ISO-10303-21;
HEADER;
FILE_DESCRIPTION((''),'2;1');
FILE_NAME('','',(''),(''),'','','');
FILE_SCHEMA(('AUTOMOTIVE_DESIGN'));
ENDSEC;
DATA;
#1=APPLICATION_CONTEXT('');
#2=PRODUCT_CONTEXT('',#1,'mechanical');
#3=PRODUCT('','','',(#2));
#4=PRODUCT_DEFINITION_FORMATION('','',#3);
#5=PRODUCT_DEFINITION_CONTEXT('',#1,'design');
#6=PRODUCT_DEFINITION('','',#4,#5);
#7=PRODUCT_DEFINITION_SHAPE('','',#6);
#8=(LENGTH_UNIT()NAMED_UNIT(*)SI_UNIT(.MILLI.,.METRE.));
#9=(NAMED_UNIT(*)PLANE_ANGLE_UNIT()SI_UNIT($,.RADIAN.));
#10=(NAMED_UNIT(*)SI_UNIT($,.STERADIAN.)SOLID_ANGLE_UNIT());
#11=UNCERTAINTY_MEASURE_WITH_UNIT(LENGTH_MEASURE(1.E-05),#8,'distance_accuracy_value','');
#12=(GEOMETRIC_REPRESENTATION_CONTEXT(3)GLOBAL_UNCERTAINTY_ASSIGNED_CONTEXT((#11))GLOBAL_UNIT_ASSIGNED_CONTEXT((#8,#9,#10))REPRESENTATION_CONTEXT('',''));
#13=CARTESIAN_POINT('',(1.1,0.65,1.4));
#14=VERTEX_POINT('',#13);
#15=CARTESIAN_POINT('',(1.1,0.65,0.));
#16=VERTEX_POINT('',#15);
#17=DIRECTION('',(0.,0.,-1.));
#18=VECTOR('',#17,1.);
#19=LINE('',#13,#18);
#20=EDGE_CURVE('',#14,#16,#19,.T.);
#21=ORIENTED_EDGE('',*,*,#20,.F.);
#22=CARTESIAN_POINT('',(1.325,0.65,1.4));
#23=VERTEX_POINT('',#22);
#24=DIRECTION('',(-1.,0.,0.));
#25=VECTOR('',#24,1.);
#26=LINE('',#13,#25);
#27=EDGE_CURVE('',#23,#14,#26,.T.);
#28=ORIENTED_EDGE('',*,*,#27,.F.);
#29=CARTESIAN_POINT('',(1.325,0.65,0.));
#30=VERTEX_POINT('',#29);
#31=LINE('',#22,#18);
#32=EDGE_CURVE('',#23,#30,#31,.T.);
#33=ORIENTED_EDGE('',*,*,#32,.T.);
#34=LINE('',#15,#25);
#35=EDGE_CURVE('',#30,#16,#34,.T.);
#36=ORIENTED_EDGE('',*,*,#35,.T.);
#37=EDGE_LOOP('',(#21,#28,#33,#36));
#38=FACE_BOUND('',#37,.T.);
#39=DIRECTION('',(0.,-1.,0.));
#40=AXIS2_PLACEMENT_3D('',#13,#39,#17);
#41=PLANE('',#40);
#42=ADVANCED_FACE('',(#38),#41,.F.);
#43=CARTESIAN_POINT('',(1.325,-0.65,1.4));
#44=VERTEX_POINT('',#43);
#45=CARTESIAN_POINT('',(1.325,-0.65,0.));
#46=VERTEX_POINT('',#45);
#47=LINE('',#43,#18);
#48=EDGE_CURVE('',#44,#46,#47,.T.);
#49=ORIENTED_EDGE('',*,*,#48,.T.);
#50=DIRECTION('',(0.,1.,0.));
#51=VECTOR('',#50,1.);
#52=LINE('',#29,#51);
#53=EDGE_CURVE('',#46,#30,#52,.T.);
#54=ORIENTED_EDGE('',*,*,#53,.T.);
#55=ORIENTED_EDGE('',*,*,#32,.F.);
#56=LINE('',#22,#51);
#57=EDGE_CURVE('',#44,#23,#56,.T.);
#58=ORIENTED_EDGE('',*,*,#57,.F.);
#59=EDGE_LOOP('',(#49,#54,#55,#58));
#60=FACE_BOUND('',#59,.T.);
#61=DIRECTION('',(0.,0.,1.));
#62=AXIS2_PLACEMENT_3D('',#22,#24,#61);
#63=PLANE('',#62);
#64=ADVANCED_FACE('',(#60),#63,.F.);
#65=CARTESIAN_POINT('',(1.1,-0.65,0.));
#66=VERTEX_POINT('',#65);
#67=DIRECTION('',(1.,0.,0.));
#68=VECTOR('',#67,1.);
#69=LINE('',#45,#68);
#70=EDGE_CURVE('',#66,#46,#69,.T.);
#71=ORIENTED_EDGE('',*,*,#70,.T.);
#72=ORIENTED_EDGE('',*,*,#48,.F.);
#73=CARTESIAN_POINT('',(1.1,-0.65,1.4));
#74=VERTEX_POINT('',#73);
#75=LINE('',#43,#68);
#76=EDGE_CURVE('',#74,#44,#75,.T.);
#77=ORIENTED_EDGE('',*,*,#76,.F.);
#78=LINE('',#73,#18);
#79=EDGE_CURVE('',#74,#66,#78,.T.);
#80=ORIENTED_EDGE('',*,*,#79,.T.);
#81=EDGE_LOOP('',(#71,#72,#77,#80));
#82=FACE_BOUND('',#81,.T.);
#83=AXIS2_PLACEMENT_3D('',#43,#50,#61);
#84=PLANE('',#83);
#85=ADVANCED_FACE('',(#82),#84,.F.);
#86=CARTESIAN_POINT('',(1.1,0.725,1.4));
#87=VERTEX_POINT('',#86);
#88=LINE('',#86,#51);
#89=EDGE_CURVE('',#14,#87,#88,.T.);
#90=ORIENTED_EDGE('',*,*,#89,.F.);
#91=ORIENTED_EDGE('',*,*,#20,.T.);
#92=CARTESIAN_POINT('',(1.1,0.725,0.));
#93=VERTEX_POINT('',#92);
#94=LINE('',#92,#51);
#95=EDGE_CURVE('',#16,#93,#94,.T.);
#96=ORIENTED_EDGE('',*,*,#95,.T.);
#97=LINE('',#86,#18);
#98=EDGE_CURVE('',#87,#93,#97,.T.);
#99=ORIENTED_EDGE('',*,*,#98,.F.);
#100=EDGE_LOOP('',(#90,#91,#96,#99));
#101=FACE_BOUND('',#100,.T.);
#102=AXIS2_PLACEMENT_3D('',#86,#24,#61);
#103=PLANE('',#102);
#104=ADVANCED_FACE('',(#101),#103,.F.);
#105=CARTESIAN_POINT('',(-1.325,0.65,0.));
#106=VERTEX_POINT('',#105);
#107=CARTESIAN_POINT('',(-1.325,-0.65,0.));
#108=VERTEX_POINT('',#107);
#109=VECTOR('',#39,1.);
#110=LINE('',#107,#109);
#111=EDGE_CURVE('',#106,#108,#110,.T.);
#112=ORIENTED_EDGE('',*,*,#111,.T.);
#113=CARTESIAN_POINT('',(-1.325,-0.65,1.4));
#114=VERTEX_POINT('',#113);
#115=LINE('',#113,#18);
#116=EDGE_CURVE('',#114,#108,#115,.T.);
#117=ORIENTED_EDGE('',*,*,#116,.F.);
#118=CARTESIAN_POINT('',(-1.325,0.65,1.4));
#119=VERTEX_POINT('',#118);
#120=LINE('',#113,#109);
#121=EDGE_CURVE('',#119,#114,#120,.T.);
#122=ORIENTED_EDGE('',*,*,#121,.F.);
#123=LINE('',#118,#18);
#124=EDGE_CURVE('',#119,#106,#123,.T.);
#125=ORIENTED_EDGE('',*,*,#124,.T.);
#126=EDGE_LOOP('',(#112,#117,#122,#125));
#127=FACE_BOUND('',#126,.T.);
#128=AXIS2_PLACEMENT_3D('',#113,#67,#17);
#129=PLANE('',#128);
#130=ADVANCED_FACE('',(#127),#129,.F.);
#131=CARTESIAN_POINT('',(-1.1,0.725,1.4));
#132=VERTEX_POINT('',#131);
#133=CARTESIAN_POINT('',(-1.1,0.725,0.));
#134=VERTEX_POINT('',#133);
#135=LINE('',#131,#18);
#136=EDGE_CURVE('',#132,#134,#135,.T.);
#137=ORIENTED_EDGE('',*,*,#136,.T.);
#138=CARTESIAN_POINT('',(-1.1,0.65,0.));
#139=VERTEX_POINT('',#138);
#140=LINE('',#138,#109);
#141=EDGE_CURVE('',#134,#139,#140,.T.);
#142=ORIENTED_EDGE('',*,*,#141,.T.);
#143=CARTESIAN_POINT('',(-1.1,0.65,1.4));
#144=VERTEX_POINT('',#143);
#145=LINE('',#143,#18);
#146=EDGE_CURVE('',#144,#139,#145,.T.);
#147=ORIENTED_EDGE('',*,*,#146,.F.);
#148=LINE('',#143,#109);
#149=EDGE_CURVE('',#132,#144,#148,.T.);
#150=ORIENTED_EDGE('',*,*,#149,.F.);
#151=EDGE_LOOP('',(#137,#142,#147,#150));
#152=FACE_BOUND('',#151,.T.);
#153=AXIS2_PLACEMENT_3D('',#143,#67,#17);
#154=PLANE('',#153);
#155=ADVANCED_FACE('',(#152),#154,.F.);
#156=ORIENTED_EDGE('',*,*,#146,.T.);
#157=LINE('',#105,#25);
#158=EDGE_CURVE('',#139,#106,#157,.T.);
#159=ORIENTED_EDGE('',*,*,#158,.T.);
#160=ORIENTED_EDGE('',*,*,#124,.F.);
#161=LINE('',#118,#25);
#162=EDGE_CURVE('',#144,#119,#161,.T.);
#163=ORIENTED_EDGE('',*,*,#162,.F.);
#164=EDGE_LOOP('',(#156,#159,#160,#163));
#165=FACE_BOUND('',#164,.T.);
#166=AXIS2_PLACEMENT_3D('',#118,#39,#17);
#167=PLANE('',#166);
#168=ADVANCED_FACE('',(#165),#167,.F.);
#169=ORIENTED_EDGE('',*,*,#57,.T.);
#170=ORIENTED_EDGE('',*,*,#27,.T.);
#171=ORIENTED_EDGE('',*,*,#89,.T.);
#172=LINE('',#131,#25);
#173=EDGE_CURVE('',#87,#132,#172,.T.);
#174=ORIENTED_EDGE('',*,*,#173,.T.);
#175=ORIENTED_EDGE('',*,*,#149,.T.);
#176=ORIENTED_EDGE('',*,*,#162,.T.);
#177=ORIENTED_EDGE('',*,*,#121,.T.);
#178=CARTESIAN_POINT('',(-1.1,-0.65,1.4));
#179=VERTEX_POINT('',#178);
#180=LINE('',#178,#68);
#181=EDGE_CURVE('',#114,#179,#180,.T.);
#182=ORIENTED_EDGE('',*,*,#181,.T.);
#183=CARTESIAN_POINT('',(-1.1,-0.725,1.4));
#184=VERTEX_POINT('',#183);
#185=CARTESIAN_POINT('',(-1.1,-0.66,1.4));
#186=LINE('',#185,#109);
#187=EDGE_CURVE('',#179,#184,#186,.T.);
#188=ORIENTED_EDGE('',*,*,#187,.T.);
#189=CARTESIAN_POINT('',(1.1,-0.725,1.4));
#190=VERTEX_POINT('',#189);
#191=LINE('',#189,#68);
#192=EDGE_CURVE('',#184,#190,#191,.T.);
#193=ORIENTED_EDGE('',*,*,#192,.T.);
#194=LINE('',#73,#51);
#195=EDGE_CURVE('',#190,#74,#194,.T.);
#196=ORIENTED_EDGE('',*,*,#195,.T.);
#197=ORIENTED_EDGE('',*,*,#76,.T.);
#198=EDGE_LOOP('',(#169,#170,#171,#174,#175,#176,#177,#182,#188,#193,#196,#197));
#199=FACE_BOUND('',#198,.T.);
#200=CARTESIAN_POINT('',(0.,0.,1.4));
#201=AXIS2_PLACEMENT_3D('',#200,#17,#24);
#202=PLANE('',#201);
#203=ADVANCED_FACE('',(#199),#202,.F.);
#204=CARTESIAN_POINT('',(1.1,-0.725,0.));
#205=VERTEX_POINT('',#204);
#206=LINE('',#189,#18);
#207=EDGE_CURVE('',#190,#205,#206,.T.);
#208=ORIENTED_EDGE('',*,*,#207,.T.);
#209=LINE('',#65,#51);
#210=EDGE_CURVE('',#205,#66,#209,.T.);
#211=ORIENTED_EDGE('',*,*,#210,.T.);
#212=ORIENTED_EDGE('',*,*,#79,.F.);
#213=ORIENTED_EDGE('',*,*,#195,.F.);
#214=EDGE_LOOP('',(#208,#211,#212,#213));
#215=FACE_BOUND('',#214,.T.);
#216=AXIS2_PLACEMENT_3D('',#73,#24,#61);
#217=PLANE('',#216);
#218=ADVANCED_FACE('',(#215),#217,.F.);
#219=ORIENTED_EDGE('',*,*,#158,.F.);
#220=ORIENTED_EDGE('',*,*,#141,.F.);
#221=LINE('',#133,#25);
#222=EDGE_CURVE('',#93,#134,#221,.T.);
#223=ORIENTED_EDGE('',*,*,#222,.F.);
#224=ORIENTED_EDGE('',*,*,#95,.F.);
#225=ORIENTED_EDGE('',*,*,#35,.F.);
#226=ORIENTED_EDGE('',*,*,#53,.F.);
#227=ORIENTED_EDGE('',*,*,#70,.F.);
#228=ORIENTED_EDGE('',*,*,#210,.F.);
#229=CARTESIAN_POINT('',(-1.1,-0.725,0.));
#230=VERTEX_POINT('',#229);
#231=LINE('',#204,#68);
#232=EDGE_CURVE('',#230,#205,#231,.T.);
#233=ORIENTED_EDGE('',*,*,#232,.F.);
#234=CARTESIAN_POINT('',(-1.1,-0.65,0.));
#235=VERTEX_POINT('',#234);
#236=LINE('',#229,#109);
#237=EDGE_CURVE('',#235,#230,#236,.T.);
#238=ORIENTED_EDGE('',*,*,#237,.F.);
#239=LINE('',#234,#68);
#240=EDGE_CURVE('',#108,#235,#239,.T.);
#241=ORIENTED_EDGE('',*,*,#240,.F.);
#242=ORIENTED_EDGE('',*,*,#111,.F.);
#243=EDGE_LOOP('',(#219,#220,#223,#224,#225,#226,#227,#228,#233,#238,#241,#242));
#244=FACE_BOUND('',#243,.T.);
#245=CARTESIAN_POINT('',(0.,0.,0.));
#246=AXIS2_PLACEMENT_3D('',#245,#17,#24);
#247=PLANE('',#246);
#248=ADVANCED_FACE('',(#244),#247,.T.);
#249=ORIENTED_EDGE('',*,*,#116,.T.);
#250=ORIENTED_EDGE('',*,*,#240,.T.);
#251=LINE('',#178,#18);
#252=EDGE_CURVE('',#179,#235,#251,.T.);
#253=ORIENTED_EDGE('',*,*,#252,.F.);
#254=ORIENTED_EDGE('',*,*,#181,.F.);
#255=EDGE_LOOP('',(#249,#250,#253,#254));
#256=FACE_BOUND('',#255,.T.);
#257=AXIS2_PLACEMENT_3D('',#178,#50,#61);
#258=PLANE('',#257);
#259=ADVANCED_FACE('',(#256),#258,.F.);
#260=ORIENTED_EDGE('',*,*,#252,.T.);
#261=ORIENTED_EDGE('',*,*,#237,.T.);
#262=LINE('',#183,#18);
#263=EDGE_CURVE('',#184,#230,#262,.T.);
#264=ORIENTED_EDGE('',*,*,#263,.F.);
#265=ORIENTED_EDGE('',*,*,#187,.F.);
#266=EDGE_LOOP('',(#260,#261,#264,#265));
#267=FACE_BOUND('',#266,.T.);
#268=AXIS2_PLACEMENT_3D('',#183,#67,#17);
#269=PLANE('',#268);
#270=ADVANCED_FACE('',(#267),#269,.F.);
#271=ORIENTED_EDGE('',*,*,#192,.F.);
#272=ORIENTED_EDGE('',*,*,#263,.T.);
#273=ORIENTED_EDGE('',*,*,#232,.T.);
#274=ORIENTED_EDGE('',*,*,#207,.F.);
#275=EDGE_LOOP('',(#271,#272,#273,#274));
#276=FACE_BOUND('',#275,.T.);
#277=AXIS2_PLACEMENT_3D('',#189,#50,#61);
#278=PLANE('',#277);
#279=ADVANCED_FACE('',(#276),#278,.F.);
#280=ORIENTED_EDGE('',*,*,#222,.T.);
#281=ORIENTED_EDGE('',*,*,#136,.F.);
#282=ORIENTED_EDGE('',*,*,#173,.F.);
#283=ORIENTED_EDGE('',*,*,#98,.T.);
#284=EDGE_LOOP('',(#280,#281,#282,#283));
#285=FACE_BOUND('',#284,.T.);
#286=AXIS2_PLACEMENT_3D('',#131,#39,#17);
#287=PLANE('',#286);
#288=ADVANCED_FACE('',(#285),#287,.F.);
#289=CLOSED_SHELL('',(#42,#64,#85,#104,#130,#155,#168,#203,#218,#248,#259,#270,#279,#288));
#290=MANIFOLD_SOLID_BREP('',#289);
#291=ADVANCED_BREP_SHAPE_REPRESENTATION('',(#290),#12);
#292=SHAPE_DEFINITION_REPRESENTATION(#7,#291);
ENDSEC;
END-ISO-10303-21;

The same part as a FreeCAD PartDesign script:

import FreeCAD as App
import Part
import Sketcher

V = App.Vector
Q = App.Units.Quantity

doc = App.newDocument("Part")
params = doc.addObject("Spreadsheet::Sheet", "Params")
for row, (alias, value) in enumerate([
    ("sketch1_width", "2.2 mm"),
    ("sketch1_height", "1.3 mm"),
    ("pad1_length", "1.4 mm"),
], start=1):
    params.set(f"A{row}", alias)
    params.set(f"B{row}", "=" + value)
    params.setAlias(f"B{row}", alias)

body = doc.addObject("PartDesign::Body", "Body")

sketch1 = body.newObject("Sketcher::SketchObject", "Sketch")
sketch1.AttachmentSupport = (doc.getObject("XY_Plane"), [""])
sketch1.MapMode = "FlatFace"
sketch1.addGeometry([
    Part.LineSegment(V(-1.1, -0.65, 0), V(-1.1, -0.72, 0)),
    Part.LineSegment(V(-1.1, -0.72, 0), V(1.1, -0.72, 0)),
    Part.LineSegment(V(1.1, -0.72, 0), V(1.1, -0.65, 0)),
    Part.LineSegment(V(1.1, -0.65, 0), V(1.32, -0.65, 0)),
    Part.LineSegment(V(1.32, -0.65, 0), V(1.32, 0.65, 0)),
    Part.LineSegment(V(1.32, 0.65, 0), V(1.1, 0.65, 0)),
    Part.LineSegment(V(1.1, 0.65, 0), V(1.1, 0.72, 0)),
    Part.LineSegment(V(1.1, 0.72, 0), V(-1.1, 0.72, 0)),
    Part.LineSegment(V(-1.1, 0.72, 0), V(-1.1, 0.65, 0)),
    Part.LineSegment(V(-1.1, 0.65, 0), V(-1.32, 0.65, 0)),
    Part.LineSegment(V(-1.32, 0.65, 0), V(-1.32, -0.65, 0)),
    Part.LineSegment(V(-1.32, -0.65, 0), V(-1.1, -0.65, 0)),
], False)
sketch1.addConstraint([
    Sketcher.Constraint("Coincident", 0, 2, 1, 1),
    Sketcher.Constraint("Coincident", 1, 2, 2, 1),
    Sketcher.Constraint("Coincident", 2, 2, 3, 1),
    Sketcher.Constraint("Coincident", 3, 2, 4, 1),
    Sketcher.Constraint("Coincident", 4, 2, 5, 1),
    Sketcher.Constraint("Coincident", 5, 2, 6, 1),
    Sketcher.Constraint("Coincident", 6, 2, 7, 1),
    Sketcher.Constraint("Coincident", 7, 2, 8, 1),
    Sketcher.Constraint("Coincident", 8, 2, 9, 1),
    Sketcher.Constraint("Coincident", 9, 2, 10, 1),
    Sketcher.Constraint("Coincident", 10, 2, 11, 1),
    Sketcher.Constraint("Coincident", 11, 2, 0, 1),
    Sketcher.Constraint("Vertical", 0),
    Sketcher.Constraint("Horizontal", 1),
    Sketcher.Constraint("Vertical", 2),
    Sketcher.Constraint("Horizontal", 3),
    Sketcher.Constraint("Vertical", 4),
    Sketcher.Constraint("Horizontal", 5),
    Sketcher.Constraint("Vertical", 6),
    Sketcher.Constraint("Horizontal", 7),
    Sketcher.Constraint("Vertical", 8),
    Sketcher.Constraint("Horizontal", 9),
    Sketcher.Constraint("Vertical", 10),
    Sketcher.Constraint("Horizontal", 11),
    Sketcher.Constraint("Symmetric", 0, 2, 6, 2, -1, 1),
    Sketcher.Constraint("Symmetric", 2, 2, 8, 2, -1, 1),
    Sketcher.Constraint("Symmetric", 4, 2, 10, 2, -1, 1),
    Sketcher.Constraint("Symmetric", 5, 2, 8, 2, -2),
    Sketcher.Constraint("DistanceX", 1, 1, 1, 2, Q("2.2 mm")),
    Sketcher.Constraint("DistanceY", 4, 1, 4, 2, Q("1.3 mm")),
    Sketcher.Constraint("DistanceX", 3, 1, 3, 2, Q("0.225 mm")),
    Sketcher.Constraint("DistanceY", 0, 2, 0, 1, Q("0.075 mm")),
])
sketch1.setExpression("Constraints[28]", "Params.sketch1_width")
sketch1.setExpression("Constraints[29]", "Params.sketch1_height")
pad1 = body.newObject("PartDesign::Pad", "Pad")
pad1.Profile = sketch1
pad1.setExpression("Length", "Params.pad1_length")

doc.recompute()
